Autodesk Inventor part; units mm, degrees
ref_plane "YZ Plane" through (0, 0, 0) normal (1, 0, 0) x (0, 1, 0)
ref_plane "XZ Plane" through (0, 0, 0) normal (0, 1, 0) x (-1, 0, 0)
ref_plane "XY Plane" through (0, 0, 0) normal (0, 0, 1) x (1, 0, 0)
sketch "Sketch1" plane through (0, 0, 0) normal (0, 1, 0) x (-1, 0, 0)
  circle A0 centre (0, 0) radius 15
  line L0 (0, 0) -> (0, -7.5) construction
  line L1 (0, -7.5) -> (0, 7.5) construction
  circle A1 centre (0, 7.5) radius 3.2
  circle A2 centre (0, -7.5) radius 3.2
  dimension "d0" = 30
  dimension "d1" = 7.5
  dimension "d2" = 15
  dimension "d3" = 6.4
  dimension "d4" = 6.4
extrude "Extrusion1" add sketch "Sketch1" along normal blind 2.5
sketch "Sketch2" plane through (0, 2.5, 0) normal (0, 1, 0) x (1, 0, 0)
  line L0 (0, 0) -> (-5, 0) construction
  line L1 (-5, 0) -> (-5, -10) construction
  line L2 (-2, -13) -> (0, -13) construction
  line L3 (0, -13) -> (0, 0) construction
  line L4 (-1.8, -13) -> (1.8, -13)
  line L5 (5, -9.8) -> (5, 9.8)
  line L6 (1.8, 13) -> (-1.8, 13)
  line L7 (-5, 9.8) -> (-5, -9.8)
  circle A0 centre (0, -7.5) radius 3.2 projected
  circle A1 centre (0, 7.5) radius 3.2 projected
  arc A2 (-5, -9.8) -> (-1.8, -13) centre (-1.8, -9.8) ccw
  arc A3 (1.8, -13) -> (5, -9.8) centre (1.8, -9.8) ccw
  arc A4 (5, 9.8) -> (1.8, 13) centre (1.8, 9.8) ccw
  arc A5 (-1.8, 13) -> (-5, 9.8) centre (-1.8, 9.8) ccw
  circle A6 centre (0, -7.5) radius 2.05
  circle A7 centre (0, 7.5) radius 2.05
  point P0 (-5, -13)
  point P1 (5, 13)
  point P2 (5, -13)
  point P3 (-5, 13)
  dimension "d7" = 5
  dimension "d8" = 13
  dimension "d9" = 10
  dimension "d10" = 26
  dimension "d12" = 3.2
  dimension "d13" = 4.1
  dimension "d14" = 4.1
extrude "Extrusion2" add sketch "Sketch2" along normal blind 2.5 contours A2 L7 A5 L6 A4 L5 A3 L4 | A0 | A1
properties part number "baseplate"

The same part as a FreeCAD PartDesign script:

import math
import FreeCAD as App
import Part
import Sketcher

doc = App.newDocument("Part")
body = doc.addObject("PartDesign::Body", "Body")

# Sketch on XZ plane
sketch1 = body.newObject("Sketcher::SketchObject", "Sketch")
sketch1.AttachmentSupport = (doc.getObject("XZ_Plane"), [""])
sketch1.MapMode = "FlatFace"
sketch1.addGeometry([
    Part.Circle(App.Vector(0, 0, 0), App.Vector(0, 0, 1), 15),
    Part.Circle(App.Vector(0, -7.5, 0), App.Vector(0, 0, 1), 3.2),
    Part.Circle(App.Vector(0, 7.5, 0), App.Vector(0, 0, 1), 3.2),
], False)
sketch1.addConstraint([
    Sketcher.Constraint("Coincident", 0, 3, -1, 1),
    Sketcher.Constraint("Equal", 1, 2),
    Sketcher.Constraint("Symmetric", 1, 3, 2, 3, -1, 1),
    Sketcher.Constraint("PointOnObject", 1, 3, -2),
    Sketcher.Constraint("Diameter", 0, 30.0),
    Sketcher.Constraint("Diameter", 1, 6.4),
    Sketcher.Constraint("DistanceY", 1, 3, 2, 3, 15.0),
])
pad1 = body.newObject("PartDesign::Pad", "Pad")
pad1.Profile = sketch1
pad1.Length = 2.5
pad1.Reversed = True

# Sketch on XZ plane
sketch2 = body.newObject("Sketcher::SketchObject", "Sketch001")
sketch2.AttachmentSupport = (doc.getObject("XZ_Plane"), [""])
sketch2.MapMode = "FlatFace"
sketch2.AttachmentOffset = App.Placement(App.Vector(0, 0, -2.5), App.Rotation())
sketch2.addGeometry([
    Part.ArcOfCircle(Part.Circle(App.Vector(-1.8, 9.8, 0), App.Vector(0, 0, 1), 3.2), math.radians(90), math.radians(180)),  # 0
    Part.LineSegment(App.Vector(-1.8, 13, 0), App.Vector(1.8, 13, 0)),  # 1
    Part.ArcOfCircle(Part.Circle(App.Vector(1.8, 9.8, 0), App.Vector(0, 0, 1), 3.2), math.radians(0), math.radians(90)),  # 2
    Part.LineSegment(App.Vector(5, 9.8, 0), App.Vector(5, -9.8, 0)),  # 3
    Part.ArcOfCircle(Part.Circle(App.Vector(1.8, -9.8, 0), App.Vector(0, 0, 1), 3.2), math.radians(-90), math.radians(0)),  # 4
    Part.LineSegment(App.Vector(1.8, -13, 0), App.Vector(-1.8, -13, 0)),  # 5
    Part.ArcOfCircle(Part.Circle(App.Vector(-1.8, -9.8, 0), App.Vector(0, 0, 1), 3.2), math.radians(180), math.radians(270)),  # 6
    Part.LineSegment(App.Vector(-5, -9.8, 0), App.Vector(-5, 9.8, 0)),  # 7
    Part.Circle(App.Vector(0, 7.5, 0), App.Vector(0, 0, 1), 2),  # 8
    Part.Circle(App.Vector(0, -7.5, 0), App.Vector(0, 0, 1), 2),  # 9
], False)
sketch2.addConstraint([
    Sketcher.Constraint("Tangent", 0, 1, 1, 1),
    Sketcher.Constraint("Tangent", 1, 2, 2, 2),
    Sketcher.Constraint("Tangent", 2, 1, 3, 1),
    Sketcher.Constraint("Tangent", 3, 2, 4, 2),
    Sketcher.Constraint("Tangent", 4, 1, 5, 1),
    Sketcher.Constraint("Tangent", 5, 2, 6, 2),
    Sketcher.Constraint("Tangent", 6, 1, 7, 1),
    Sketcher.Constraint("Tangent", 7, 2, 0, 2),
    Sketcher.Constraint("Horizontal", 1),
    Sketcher.Constraint("Vertical", 3),
    Sketcher.Constraint("Horizontal", 5),
    Sketcher.Constraint("Vertical", 7),
    Sketcher.Constraint("Equal", 0, 2),
    Sketcher.Constraint("Equal", 2, 4),
    Sketcher.Constraint("Equal", 4, 6),
    Sketcher.Constraint("Equal", 8, 9),
    Sketcher.Constraint("Symmetric", 0, 3, 4, 3, -1, 1),
    Sketcher.Constraint("Symmetric", 8, 3, 9, 3, -1, 1),
    Sketcher.Constraint("PointOnObject", 8, 3, -2),
    Sketcher.Constraint("Diameter", 8, 4.1),
    Sketcher.Constraint("Radius", 0, 3.2),
    Sketcher.Constraint("DistanceY", -1, 1, 0, 1, 13.0),
    Sketcher.Constraint("DistanceX", -1, 1, 2, 1, 5.0),
    Sketcher.Constraint("DistanceY", 9, 3, 8, 3, 15.0),
])
pad2 = body.newObject("PartDesign::Pad", "Pad001")
pad2.Profile = sketch2
pad2.Length = 2.5
pad2.Reversed = True

doc.recompute()
